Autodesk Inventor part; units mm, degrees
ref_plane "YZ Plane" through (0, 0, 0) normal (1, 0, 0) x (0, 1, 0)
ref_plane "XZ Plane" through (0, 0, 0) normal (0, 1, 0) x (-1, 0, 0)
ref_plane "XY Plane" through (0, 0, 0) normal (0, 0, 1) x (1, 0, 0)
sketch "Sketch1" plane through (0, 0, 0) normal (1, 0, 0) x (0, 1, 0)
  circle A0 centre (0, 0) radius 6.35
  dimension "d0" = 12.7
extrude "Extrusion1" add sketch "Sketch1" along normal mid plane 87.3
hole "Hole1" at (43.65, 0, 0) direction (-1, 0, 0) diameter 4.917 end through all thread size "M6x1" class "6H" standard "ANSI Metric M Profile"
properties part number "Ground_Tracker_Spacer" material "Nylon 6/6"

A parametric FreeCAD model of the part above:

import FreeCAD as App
import Part
import Sketcher

V = App.Vector
Q = App.Units.Quantity

doc = App.newDocument("Part")
body = doc.addObject("PartDesign::Body", "Body")

# Sketch on YZ plane
sketch1 = doc.addObject("Sketcher::SketchObject", "Sketch")
body.addObject(sketch1)
sketch1.AttachmentSupport = (doc.YZ_Plane, [""])
sketch1.MapMode = "FlatFace"
sketch1.addGeometry(Part.Circle(V(0, 0, 0), V(0, 0, 1), 6.35), False)
sketch1.addConstraint(Sketcher.Constraint("Coincident", 0, 3, -1, 1))
sketch1.addConstraint(Sketcher.Constraint("Diameter", 0, Q("0.5 in")))
pad1 = doc.addObject("PartDesign::Pad", "Pad")
body.addObject(pad1)
pad1.Profile = sketch1
pad1.Length = Q("3.4370079 in")
pad1.Midplane = True

# Sketch on YZ plane
sketch2 = doc.addObject("Sketcher::SketchObject", "Sketch001")
body.addObject(sketch2)
sketch2.AttachmentSupport = (doc.YZ_Plane, [""])
sketch2.MapMode = "FlatFace"
sketch2.AttachmentOffset = App.Placement(V(0, 0, 1.7185039 * 25.4), App.Rotation())
sketch2.addGeometry(Part.Circle(V(0, 0, 0), V(0, 0, 1), 2.4585), False)
sketch2.addConstraint(Sketcher.Constraint("Coincident", 0, 3, -1, 1))
sketch2.addConstraint(Sketcher.Constraint("Diameter", 0, 4.917))
doc.recompute()
hole = doc.addObject("PartDesign::Hole", "Hole")
body.addObject(hole)
hole.Profile = sketch2
hole.ThreadType = "None"
hole.Diameter = 4.917
hole.DepthType = "ThroughAll"

doc.recompute()
